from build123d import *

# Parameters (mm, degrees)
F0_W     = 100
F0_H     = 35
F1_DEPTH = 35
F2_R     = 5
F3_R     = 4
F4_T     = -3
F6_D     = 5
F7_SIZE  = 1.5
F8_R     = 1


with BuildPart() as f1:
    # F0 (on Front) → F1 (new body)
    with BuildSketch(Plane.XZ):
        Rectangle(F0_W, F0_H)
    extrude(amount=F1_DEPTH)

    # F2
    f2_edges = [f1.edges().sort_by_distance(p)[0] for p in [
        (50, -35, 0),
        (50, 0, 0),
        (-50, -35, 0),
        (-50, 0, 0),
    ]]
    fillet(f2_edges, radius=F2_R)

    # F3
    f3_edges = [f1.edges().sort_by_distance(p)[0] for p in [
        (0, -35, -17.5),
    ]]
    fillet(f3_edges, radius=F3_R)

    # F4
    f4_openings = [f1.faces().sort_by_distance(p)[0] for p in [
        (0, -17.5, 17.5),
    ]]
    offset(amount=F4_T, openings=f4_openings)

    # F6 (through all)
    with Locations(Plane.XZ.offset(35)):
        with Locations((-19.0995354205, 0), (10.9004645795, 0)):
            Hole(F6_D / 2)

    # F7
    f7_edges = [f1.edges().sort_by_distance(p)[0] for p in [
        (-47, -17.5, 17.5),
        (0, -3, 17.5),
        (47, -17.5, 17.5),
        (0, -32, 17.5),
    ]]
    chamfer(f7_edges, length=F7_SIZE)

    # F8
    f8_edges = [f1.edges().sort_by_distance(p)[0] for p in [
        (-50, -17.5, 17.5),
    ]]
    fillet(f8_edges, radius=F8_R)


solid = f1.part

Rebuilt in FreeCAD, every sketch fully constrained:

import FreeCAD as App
import Part
import Sketcher
Q = App.Units.Quantity


def edges_at(feature, points):
    """Names of the edges that pass closest to the given points."""
    edges = feature.Shape.Edges
    near = lambda p: min(range(len(edges)), key=lambda i: edges[i].distToShape(Part.Vertex(*p))[0])
    return sorted({f"Edge{near(p) + 1}" for p in points})


def faces_at(feature, points):
    """Names of the faces that lie closest to the given points."""
    faces = feature.Shape.Faces
    near = lambda p: min(range(len(faces)), key=lambda i: faces[i].distToShape(Part.Vertex(*p))[0])
    return sorted({f"Face{near(p) + 1}" for p in points})


def add_polygon(sketch, points):
    """Adds a closed chain of lines whose ends are joined by coincident constraints."""
    first, n = sketch.GeometryCount, len(points)
    for a, b in zip(points, points[1:] + points[:1]):
        sketch.addGeometry(Part.LineSegment(App.Vector(*a, 0), App.Vector(*b, 0)), False)
    for i in range(n):
        sketch.addConstraint(Sketcher.Constraint("Coincident", first + i, 2, first + (i + 1) % n, 1))

doc = App.newDocument("Part")
body = doc.addObject("PartDesign::Body", "Body")

# Sketch on XZ plane
sketch1 = doc.addObject("Sketcher::SketchObject", "Sketch")
body.addObject(sketch1)
sketch1.AttachmentSupport = (doc.XZ_Plane, [""])
sketch1.MapMode = "FlatFace"
add_polygon(sketch1, [(-50, 18), (-50, -18), (50, -18), (50, 18)])  # lines 0-3
sketch1.addConstraint(Sketcher.Constraint("Vertical", 0))
sketch1.addConstraint(Sketcher.Constraint("Horizontal", 1))
sketch1.addConstraint(Sketcher.Constraint("Vertical", 2))
sketch1.addConstraint(Sketcher.Constraint("Horizontal", 3))
sketch1.addConstraint(Sketcher.Constraint("Symmetric", 0, 2, 2, 2, -1, 1))
sketch1.addConstraint(Sketcher.Constraint("DistanceX", 1, 1, 1, 2, Q("100 mm")))
sketch1.addConstraint(Sketcher.Constraint("DistanceY", 0, 2, 0, 1, Q("35 mm")))
pad1 = doc.addObject("PartDesign::Pad", "Pad")
body.addObject(pad1)
pad1.Profile = sketch1
pad1.Length = 35
doc.recompute()

fillet = doc.addObject("PartDesign::Fillet", "Fillet")
body.addObject(fillet)
fillet.Base = (pad1, edges_at(pad1, [
    (50, -35, 0),
    (50, 0, 0),
    (-50, -35, 0),
    (-50, 0, 0),
]))
fillet.Radius = 5
doc.recompute()

fillet2 = doc.addObject("PartDesign::Fillet", "Fillet001")
body.addObject(fillet2)
fillet2.Base = (fillet, edges_at(fillet, [(0, -35, -17.5)]))
fillet2.Radius = 4
doc.recompute()

thickness = doc.addObject("PartDesign::Thickness", "Thickness")
body.addObject(thickness)
thickness.Base = (fillet2, faces_at(fillet2, [(0, -17.5, 17.5)]))
thickness.Value = 3
thickness.Reversed = True
thickness.Join = "Arc"

# Sketch on XZ plane
sketch2 = doc.addObject("Sketcher::SketchObject", "Sketch001")
body.addObject(sketch2)
sketch2.AttachmentSupport = (doc.XZ_Plane, [""])
sketch2.MapMode = "FlatFace"
sketch2.AttachmentOffset = App.Placement(App.Vector(0, 0, 35), App.Rotation())
sketch2.addGeometry(Part.Circle(App.Vector(-19.1, 0, 0), App.Vector(0, 0, 1), 2.5), False)
sketch2.addGeometry(Part.Circle(App.Vector(10.9, 0, 0), App.Vector(0, 0, 1), 2.5), False)
sketch2.addConstraint(Sketcher.Constraint("Equal", 0, 1))
sketch2.addConstraint(Sketcher.Constraint("PointOnObject", 0, 3, -1))
sketch2.addConstraint(Sketcher.Constraint("PointOnObject", 1, 3, -1))
sketch2.addConstraint(Sketcher.Constraint("Diameter", 0, Q("5 mm")))
sketch2.addConstraint(Sketcher.Constraint("DistanceX", 0, 3, 1, 3, Q("30 mm")))
sketch2.addConstraint(Sketcher.Constraint("DistanceX", 0, 3, -1, 1, Q("19.099535 mm")))
doc.recompute()
hole = doc.addObject("PartDesign::Hole", "Hole")
body.addObject(hole)
hole.Profile = sketch2
hole.ThreadType = "None"
hole.Diameter = 5
hole.DepthType = "ThroughAll"
doc.recompute()

chamfer = doc.addObject("PartDesign::Chamfer", "Chamfer")
body.addObject(chamfer)
chamfer.Base = (hole, edges_at(hole, [
    (-47, -17.5, 17.5),
    (0, -3, 17.5),
    (47, -17.5, 17.5),
    (0, -32, 17.5),
]))
chamfer.Size = 1.5
doc.recompute()

fillet3 = doc.addObject("PartDesign::Fillet", "Fillet002")
body.addObject(fillet3)
fillet3.Base = (chamfer, edges_at(chamfer, [(-50, -17.5, 17.5)]))
fillet3.Radius = 1

doc.recompute()
